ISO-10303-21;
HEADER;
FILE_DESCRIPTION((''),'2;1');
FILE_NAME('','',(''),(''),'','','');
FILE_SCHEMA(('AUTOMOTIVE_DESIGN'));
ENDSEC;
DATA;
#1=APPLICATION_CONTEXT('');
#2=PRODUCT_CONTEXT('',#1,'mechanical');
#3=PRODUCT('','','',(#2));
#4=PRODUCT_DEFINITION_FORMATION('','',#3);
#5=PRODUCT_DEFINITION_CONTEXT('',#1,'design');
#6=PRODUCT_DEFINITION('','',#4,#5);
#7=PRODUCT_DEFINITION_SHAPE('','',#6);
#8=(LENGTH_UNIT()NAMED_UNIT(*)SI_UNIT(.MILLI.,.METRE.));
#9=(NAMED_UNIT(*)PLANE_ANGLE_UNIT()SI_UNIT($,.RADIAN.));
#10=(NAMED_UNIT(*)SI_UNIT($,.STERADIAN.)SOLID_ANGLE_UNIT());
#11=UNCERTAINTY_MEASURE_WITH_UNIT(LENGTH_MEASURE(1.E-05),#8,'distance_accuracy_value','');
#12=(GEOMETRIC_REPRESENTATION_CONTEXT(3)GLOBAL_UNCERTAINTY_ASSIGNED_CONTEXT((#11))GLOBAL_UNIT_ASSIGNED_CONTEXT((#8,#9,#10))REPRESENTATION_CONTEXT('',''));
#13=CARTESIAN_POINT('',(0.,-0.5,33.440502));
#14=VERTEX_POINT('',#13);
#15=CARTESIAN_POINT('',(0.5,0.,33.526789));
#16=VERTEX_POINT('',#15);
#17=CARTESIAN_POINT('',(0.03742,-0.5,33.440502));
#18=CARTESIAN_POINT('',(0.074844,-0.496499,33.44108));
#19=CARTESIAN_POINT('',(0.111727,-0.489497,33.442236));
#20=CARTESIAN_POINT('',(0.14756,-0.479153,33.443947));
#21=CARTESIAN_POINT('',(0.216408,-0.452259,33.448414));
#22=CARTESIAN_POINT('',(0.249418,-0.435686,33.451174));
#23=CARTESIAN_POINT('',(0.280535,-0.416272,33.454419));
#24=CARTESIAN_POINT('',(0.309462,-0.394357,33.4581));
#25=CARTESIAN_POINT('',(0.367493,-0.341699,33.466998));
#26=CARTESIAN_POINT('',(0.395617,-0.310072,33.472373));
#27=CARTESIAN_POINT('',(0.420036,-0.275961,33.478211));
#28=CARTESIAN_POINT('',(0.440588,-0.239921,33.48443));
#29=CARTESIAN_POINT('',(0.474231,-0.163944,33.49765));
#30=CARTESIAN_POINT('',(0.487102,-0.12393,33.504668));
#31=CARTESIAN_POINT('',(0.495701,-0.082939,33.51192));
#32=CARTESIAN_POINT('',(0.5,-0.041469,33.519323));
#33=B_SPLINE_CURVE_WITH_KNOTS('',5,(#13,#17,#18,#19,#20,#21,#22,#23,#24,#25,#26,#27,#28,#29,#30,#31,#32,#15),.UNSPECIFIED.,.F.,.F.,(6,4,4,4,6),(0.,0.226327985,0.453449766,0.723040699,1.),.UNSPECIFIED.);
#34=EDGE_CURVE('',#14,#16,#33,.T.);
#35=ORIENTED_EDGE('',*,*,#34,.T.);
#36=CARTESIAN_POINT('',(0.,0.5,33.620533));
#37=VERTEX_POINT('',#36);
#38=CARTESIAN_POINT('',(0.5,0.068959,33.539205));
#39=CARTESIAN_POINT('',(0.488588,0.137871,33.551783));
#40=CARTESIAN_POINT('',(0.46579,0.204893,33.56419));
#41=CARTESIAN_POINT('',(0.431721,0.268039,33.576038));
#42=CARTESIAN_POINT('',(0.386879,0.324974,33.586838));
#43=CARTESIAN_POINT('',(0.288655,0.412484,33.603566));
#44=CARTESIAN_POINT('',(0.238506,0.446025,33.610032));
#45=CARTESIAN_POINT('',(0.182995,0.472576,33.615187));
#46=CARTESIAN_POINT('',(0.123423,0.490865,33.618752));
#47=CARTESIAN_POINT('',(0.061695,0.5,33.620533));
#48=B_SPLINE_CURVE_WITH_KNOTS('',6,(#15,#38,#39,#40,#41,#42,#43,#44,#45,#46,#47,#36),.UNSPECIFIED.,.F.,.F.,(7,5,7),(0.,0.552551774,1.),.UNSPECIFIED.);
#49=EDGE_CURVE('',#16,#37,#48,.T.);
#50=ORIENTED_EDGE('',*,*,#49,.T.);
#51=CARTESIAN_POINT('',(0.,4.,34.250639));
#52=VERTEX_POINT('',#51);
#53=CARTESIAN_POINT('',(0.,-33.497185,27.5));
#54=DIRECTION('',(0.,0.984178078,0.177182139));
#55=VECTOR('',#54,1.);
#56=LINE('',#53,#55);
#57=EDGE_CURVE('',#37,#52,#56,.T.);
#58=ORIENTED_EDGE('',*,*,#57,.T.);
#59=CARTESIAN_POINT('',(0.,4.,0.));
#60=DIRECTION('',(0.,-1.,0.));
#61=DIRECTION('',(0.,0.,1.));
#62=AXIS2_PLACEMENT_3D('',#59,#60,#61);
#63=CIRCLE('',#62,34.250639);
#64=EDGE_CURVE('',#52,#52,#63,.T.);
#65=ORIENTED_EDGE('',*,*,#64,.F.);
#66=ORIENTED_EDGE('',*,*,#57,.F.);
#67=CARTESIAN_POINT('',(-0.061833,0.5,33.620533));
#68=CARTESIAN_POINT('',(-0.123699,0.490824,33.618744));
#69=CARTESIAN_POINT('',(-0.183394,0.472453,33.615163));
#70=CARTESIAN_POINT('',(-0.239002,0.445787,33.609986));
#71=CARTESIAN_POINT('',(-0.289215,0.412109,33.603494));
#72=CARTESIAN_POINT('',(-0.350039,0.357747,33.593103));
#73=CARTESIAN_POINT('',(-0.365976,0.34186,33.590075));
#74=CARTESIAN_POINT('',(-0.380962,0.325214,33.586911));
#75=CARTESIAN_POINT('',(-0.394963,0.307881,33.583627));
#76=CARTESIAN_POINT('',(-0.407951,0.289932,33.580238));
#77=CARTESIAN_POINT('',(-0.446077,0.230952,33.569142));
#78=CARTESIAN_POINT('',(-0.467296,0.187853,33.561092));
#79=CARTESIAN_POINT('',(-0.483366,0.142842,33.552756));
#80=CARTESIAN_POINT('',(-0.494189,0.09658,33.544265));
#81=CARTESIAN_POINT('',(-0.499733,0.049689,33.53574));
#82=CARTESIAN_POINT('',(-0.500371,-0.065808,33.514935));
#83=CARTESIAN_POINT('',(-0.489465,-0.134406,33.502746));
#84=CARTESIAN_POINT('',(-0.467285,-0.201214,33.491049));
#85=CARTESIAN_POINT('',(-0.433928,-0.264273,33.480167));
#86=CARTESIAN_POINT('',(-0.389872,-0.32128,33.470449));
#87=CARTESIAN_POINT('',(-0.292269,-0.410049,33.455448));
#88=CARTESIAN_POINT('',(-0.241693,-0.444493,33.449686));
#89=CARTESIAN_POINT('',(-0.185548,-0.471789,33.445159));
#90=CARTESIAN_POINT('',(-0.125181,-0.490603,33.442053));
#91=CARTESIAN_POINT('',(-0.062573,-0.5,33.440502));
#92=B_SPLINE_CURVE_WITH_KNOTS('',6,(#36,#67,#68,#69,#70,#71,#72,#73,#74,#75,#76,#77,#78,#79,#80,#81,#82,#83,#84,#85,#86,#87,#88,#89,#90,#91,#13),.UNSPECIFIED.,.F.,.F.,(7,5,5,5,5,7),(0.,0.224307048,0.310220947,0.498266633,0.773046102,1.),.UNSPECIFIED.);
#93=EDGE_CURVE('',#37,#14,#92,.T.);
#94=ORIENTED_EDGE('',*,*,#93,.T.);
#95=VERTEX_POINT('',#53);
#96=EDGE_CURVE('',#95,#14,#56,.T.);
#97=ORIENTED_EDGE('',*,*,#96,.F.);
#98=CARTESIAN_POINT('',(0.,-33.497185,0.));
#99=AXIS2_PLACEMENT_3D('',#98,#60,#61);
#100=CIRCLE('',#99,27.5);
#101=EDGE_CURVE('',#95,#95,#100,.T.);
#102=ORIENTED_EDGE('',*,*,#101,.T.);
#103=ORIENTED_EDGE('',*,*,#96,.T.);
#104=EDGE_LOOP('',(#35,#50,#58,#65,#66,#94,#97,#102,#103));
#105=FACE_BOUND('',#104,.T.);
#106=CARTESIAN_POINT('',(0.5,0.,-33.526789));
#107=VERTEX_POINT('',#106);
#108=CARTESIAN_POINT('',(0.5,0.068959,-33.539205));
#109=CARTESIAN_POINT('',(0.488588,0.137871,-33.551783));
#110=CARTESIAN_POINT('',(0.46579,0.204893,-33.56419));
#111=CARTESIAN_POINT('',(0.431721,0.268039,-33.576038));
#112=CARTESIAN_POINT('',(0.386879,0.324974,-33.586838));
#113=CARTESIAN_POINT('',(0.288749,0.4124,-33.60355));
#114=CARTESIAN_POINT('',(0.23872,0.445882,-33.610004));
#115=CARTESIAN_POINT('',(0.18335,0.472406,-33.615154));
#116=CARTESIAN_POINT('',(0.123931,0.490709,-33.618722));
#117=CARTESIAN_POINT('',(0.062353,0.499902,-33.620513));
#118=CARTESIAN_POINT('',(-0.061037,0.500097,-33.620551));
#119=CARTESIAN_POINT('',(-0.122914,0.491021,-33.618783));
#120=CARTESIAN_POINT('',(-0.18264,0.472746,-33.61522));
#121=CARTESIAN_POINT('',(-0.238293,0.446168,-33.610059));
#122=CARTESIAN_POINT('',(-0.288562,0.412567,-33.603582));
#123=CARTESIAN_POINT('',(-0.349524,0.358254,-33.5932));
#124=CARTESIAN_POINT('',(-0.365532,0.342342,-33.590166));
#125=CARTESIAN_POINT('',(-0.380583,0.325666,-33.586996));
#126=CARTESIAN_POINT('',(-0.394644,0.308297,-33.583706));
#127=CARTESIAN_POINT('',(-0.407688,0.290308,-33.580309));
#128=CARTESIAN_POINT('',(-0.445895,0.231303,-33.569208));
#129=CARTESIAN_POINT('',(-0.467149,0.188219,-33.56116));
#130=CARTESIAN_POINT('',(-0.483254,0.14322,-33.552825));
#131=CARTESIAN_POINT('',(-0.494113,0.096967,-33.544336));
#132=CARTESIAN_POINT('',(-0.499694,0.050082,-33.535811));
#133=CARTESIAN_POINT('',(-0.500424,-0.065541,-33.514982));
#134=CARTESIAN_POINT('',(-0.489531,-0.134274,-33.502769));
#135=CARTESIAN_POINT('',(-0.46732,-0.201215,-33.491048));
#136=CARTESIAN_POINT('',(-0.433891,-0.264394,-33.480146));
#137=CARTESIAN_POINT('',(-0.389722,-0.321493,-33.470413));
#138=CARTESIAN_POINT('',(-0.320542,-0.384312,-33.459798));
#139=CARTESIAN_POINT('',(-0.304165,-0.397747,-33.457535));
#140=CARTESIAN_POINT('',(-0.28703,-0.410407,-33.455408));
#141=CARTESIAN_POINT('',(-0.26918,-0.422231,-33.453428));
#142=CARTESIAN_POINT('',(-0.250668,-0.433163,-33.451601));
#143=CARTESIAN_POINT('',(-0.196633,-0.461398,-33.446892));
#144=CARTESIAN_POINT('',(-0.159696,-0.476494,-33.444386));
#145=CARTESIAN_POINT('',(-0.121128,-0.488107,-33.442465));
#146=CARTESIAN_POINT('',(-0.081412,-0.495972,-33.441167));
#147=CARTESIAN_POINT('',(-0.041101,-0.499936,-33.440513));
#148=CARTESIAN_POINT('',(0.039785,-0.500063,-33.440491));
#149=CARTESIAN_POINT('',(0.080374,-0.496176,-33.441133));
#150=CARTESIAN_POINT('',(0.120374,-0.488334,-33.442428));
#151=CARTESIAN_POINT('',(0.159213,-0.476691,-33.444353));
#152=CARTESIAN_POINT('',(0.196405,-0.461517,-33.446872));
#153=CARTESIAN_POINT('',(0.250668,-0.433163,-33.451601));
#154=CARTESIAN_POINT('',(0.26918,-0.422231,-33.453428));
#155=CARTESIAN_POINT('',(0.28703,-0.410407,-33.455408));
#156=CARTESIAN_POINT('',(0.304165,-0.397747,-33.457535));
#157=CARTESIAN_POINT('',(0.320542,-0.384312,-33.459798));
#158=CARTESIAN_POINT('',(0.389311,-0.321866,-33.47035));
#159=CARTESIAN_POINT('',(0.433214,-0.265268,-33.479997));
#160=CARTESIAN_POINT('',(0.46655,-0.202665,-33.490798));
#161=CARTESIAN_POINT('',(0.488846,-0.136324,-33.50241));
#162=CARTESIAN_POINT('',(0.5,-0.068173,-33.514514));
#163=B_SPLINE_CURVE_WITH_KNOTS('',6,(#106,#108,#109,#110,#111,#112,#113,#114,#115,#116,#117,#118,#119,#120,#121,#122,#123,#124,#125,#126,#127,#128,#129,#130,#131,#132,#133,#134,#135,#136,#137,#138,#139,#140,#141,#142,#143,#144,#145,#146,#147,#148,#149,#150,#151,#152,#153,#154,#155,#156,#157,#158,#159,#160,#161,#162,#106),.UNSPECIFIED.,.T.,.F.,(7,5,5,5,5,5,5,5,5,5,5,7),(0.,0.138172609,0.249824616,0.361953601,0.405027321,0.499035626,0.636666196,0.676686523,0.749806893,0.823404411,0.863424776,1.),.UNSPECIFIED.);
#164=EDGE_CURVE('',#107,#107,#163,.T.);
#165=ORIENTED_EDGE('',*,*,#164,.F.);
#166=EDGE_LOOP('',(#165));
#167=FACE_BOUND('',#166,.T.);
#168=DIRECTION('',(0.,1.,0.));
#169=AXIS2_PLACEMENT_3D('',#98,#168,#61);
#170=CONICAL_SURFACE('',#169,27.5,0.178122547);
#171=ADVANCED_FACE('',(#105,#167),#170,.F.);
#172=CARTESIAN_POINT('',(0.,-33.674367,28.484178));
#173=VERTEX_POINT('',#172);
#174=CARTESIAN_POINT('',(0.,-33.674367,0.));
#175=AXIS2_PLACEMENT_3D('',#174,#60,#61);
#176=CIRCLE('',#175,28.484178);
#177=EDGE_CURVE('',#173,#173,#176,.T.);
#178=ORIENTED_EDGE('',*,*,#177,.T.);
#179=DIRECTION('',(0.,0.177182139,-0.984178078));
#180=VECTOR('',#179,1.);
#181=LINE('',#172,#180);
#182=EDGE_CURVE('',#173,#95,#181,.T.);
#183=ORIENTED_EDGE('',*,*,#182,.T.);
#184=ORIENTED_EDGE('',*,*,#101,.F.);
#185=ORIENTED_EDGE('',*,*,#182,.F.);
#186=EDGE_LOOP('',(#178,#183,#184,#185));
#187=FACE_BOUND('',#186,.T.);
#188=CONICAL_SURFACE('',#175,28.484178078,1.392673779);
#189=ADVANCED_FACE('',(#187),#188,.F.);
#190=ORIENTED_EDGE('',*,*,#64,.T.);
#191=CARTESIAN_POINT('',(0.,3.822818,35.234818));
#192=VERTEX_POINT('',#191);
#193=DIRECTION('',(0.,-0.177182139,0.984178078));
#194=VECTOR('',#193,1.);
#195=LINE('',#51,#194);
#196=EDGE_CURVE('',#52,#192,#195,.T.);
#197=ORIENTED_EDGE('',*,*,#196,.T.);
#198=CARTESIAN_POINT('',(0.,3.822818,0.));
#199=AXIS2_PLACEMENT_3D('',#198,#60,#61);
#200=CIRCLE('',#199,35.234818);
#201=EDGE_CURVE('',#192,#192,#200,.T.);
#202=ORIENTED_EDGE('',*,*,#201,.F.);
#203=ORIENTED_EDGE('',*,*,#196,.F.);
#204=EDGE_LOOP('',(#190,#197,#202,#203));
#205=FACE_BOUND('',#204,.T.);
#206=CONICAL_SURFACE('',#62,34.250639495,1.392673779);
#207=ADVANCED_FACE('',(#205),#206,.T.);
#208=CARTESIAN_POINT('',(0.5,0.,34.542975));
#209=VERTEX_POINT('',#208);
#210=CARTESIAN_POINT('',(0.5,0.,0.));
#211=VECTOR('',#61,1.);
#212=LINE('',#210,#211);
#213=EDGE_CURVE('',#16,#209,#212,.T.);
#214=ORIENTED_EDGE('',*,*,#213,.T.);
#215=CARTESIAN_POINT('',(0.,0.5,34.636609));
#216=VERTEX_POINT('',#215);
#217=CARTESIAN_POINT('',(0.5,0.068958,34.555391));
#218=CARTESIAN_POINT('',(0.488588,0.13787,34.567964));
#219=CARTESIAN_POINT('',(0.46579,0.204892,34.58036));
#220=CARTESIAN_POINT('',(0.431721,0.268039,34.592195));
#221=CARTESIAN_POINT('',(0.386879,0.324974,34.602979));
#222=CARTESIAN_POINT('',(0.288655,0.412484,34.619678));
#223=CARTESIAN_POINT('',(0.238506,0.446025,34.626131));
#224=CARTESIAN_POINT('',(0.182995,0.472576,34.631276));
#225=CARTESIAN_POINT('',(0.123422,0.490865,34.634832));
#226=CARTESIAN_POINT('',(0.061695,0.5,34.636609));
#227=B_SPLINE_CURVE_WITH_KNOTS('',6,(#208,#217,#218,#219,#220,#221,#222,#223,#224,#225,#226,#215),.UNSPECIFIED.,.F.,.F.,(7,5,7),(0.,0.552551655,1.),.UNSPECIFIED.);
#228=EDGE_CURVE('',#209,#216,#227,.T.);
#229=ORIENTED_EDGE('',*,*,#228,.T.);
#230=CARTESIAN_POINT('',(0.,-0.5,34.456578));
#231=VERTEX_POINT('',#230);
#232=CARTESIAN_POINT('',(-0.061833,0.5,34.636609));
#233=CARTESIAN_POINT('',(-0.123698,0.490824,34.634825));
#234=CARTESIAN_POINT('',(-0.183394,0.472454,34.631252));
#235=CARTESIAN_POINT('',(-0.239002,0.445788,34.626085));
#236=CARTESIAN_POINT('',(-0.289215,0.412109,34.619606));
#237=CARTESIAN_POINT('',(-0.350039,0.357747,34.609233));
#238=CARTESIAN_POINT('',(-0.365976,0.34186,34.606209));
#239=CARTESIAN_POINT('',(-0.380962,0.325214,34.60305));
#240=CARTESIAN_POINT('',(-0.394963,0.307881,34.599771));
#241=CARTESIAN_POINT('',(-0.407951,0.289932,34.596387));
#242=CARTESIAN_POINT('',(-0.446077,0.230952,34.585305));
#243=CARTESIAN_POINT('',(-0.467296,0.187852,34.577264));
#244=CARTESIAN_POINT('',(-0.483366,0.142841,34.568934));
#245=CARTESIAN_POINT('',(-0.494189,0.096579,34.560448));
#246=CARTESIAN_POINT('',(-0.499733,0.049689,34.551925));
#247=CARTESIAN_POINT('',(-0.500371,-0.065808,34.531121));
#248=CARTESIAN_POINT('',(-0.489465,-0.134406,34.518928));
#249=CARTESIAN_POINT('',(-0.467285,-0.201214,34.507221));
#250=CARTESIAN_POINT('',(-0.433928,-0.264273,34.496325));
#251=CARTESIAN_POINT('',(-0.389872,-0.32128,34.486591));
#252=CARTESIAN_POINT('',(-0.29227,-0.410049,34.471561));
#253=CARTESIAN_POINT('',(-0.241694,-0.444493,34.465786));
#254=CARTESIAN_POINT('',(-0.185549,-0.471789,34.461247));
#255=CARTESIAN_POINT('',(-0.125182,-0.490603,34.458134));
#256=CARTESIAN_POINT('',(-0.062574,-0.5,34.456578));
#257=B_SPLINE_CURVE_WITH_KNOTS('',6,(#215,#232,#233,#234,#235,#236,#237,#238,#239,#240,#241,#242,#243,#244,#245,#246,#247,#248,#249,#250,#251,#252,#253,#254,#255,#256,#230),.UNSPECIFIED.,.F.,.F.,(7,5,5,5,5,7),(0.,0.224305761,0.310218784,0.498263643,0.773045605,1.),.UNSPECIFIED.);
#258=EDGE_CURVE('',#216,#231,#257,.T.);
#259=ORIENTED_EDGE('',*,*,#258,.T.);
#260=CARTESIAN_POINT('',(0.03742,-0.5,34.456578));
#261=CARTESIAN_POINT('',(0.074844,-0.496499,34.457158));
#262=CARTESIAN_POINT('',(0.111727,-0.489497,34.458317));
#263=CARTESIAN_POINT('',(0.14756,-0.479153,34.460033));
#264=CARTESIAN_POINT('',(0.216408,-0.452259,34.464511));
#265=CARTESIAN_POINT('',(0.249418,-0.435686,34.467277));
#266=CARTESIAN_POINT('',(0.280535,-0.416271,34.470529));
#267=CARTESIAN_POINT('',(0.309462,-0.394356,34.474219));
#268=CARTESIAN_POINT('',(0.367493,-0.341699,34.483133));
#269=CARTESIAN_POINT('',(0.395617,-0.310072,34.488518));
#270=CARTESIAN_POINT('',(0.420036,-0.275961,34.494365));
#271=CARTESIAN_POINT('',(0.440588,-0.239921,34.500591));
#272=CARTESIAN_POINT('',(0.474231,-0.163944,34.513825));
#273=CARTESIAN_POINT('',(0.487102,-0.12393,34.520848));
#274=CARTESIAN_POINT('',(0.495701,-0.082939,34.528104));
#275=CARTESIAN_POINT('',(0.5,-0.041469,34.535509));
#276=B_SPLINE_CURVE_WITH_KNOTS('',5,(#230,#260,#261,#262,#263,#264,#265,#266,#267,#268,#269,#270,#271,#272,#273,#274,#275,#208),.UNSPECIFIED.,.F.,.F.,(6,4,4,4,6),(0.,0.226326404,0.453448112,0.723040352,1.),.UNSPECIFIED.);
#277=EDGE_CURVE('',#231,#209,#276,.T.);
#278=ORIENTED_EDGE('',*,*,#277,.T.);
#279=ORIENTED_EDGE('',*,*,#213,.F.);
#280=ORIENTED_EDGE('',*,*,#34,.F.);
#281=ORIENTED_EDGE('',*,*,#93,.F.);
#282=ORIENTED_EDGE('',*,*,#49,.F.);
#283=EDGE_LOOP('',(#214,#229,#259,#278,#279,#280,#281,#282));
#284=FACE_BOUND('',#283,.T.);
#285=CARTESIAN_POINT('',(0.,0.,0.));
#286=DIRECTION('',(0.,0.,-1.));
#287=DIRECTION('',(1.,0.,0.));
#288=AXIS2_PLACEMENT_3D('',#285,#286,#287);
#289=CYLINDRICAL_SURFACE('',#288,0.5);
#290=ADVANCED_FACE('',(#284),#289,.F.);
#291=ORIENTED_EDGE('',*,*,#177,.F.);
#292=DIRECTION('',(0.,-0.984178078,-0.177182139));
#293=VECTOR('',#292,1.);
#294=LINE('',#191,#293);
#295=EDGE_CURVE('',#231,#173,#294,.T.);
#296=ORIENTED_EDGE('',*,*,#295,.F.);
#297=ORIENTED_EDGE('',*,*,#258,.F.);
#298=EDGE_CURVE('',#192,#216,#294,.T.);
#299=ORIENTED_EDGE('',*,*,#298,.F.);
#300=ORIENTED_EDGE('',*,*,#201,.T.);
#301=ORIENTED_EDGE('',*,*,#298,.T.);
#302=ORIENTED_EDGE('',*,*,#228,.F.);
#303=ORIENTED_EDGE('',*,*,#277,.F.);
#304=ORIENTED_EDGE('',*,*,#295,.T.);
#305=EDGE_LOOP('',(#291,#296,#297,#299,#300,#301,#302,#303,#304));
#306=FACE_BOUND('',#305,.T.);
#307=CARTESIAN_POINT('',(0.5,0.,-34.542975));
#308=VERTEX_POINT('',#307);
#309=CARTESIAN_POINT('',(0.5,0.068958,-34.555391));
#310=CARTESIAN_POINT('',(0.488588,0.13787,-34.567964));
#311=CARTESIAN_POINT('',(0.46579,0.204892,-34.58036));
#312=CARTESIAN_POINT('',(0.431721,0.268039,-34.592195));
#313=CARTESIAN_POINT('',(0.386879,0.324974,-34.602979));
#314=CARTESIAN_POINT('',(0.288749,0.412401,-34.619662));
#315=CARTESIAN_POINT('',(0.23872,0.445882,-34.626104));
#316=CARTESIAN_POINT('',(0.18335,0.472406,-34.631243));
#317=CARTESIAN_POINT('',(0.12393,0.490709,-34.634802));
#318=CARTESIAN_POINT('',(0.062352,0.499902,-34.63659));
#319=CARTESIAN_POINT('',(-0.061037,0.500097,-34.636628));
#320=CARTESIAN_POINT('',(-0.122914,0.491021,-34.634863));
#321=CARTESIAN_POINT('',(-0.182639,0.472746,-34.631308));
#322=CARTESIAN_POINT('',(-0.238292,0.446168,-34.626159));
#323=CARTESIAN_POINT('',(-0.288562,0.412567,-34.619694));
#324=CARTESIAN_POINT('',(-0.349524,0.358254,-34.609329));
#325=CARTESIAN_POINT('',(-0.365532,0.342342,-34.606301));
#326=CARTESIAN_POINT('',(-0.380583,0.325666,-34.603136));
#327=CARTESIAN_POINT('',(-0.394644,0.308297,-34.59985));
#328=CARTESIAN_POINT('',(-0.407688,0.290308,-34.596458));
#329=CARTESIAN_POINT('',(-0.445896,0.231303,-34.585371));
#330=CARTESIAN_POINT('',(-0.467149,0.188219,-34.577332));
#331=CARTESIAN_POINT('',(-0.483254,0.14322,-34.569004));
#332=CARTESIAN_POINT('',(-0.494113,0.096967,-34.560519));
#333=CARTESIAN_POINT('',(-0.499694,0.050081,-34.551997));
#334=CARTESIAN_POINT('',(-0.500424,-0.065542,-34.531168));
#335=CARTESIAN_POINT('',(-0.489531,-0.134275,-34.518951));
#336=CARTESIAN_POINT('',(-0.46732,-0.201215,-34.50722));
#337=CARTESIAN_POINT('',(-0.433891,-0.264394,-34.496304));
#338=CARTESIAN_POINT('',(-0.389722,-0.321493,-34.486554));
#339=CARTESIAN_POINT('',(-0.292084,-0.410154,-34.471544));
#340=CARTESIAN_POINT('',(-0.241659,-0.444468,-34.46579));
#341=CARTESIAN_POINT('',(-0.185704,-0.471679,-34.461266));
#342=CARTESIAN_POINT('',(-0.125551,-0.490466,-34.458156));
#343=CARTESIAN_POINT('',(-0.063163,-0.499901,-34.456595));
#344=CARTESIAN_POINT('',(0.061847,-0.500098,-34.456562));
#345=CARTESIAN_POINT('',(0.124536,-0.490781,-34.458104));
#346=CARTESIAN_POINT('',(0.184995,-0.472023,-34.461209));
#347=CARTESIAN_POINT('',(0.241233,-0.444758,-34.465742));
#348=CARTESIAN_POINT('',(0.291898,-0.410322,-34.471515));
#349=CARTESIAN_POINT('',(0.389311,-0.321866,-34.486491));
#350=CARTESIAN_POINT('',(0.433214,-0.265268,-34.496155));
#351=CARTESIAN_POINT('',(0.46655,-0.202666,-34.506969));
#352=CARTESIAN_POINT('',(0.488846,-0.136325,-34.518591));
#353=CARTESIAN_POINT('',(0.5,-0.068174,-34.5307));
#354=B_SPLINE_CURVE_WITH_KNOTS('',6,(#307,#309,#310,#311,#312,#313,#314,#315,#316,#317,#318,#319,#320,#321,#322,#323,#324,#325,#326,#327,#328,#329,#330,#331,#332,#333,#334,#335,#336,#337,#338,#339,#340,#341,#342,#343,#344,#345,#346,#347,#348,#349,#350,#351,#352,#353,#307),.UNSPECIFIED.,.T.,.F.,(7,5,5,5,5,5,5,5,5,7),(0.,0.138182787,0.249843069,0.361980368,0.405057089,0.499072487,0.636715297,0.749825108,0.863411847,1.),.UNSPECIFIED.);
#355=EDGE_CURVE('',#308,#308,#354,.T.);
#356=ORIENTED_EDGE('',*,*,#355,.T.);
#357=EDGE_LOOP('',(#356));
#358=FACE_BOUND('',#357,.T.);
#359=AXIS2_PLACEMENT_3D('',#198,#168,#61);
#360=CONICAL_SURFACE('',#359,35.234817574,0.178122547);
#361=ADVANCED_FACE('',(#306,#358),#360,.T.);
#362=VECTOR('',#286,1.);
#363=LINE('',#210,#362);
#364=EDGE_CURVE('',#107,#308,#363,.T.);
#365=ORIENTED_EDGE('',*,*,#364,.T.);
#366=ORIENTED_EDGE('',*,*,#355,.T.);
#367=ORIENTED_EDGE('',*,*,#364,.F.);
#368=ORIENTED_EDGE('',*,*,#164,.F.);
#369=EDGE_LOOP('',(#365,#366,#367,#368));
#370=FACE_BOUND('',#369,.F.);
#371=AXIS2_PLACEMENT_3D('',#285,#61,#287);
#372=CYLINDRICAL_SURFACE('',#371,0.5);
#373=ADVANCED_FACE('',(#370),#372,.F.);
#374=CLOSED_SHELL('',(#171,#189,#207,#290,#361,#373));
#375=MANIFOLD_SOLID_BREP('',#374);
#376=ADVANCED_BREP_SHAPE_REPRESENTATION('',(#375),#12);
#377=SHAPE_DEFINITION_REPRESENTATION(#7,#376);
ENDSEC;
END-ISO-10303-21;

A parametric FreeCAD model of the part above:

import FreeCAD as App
import Part
import Sketcher
from FreeCAD import Vector

doc = App.newDocument("Part")
body = doc.addObject("PartDesign::Body", "Body")

sketch1 = body.newObject("Sketcher::SketchObject", "Sketch")
sketch1.AttachmentSupport = (doc.getObject("YZ_Plane"), [""])
sketch1.MapMode = "FlatFace"
sketch1.addGeometry([
    Part.LineSegment(Vector(-33.5, 27.5, 0), Vector(4, 34.3, 0)),
    Part.LineSegment(Vector(4, 34.3, 0), Vector(3.8, 35.2, 0)),
    Part.LineSegment(Vector(3.8, 35.2, 0), Vector(-33.7, 28.5, 0)),
    Part.LineSegment(Vector(-33.7, 28.5, 0), Vector(-33.5, 27.5, 0)),
], False)
sketch1.addConstraint([
    Sketcher.Constraint("Coincident", 0, 2, 1, 1),
    Sketcher.Constraint("Coincident", 1, 2, 2, 1),
    Sketcher.Constraint("Coincident", 2, 2, 3, 1),
    Sketcher.Constraint("Coincident", 3, 2, 0, 1),
    Sketcher.Constraint("Perpendicular", 0, 1),
    Sketcher.Constraint("Perpendicular", 1, 2),
    Sketcher.Constraint("Perpendicular", 2, 3),
    Sketcher.Constraint("Distance", 1, 1.0),
    Sketcher.Constraint("DistanceX", -1, 1, 0, 2, 4.0),
    Sketcher.Constraint("Distance", 0, 38.1),
    Sketcher.Constraint("DistanceY", -1, 1, 3, 2, 27.5),
    Sketcher.Constraint("DistanceY", -1, 1, 0, 2, 34.250639),
])
revolution = body.newObject("PartDesign::Revolution", "Revolution")
revolution.Profile = sketch1
revolution.ReferenceAxis = (sketch1, ["H_Axis"])
revolution.Angle = 360

sketch2 = body.newObject("Sketcher::SketchObject", "Sketch001")
sketch2.AttachmentSupport = (doc.getObject("XY_Plane"), [""])
sketch2.MapMode = "FlatFace"
sketch2.addGeometry(Part.Circle(Vector(0, 0, 0), Vector(0, 0, 1), 0.5), False)
sketch2.addConstraint([
    Sketcher.Constraint("Coincident", 0, 3, -1, 1),
    Sketcher.Constraint("Diameter", 0, 1.0),
])
pocket1 = body.newObject("PartDesign::Pocket", "Pocket")
pocket1.Profile = sketch2
pocket1.Type = "ThroughAll"
pocket1.Midplane = True

doc.recompute()
